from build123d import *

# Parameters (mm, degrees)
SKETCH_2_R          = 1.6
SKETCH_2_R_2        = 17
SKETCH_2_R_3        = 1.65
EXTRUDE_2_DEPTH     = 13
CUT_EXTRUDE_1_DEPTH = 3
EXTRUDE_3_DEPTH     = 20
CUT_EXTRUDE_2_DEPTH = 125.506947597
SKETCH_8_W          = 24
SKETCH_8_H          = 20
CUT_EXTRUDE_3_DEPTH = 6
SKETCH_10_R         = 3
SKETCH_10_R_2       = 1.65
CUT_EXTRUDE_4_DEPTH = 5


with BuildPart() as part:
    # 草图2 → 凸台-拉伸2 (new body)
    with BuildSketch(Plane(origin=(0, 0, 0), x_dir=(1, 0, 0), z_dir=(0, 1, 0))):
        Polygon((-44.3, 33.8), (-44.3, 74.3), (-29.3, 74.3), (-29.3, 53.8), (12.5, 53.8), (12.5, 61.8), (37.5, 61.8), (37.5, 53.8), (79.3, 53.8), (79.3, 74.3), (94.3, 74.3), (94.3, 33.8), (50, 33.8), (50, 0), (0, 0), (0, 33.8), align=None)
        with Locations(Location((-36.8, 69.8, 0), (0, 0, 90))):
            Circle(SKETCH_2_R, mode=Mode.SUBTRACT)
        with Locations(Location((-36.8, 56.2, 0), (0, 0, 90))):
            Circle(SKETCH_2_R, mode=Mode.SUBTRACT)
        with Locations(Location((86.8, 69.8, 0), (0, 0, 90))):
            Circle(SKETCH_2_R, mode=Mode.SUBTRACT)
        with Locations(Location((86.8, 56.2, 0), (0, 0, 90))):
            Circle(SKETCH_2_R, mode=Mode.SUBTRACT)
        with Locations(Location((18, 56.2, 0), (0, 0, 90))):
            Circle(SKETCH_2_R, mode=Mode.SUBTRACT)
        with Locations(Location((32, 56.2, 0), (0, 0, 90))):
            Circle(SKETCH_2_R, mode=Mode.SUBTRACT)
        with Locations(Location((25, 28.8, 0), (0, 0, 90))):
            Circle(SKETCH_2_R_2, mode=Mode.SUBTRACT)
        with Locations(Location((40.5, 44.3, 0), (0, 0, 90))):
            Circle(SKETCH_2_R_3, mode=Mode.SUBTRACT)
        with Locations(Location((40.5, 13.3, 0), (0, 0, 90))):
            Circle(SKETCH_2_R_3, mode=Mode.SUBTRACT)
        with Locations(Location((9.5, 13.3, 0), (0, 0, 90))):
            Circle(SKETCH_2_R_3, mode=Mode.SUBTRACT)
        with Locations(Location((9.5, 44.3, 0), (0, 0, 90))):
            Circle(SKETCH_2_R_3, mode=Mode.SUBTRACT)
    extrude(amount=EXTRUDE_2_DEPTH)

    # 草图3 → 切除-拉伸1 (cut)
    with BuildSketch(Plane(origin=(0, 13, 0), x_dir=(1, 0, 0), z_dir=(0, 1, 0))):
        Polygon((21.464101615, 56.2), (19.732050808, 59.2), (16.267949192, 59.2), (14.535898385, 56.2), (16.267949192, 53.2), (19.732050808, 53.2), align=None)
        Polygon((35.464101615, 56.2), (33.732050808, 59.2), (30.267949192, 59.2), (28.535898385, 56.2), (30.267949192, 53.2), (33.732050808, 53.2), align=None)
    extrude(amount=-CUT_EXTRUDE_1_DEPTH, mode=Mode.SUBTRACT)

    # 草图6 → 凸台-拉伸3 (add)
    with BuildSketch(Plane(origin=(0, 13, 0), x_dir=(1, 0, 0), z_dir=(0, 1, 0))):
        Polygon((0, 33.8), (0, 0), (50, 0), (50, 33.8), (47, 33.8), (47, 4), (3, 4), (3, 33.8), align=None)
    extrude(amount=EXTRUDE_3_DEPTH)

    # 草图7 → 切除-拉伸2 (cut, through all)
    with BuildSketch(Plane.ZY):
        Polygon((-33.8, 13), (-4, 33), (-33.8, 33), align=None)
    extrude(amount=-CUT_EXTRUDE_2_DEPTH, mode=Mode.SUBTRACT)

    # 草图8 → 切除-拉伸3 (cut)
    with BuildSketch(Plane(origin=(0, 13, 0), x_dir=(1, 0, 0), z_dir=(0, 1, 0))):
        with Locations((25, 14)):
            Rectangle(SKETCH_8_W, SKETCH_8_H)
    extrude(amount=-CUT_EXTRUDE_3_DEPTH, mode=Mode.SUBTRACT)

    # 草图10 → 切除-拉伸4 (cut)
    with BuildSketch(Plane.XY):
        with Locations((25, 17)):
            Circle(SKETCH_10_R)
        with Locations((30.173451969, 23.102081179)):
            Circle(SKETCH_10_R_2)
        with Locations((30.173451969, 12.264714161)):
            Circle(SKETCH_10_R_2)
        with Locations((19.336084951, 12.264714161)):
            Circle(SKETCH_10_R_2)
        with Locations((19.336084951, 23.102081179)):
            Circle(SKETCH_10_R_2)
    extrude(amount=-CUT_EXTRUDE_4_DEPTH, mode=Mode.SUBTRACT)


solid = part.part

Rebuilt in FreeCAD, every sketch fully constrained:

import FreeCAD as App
import Part
import Sketcher

V = App.Vector
Q = App.Units.Quantity

doc = App.newDocument("Part")
body = doc.addObject("PartDesign::Body", "Body")

sketch1 = body.newObject("Sketcher::SketchObject", "Sketch")
sketch1.AttachmentSupport = (doc.getObject("XZ_Plane"), [""])
sketch1.MapMode = "FlatFace"
sketch1.addGeometry(Part.LineSegment(V(-44.3, -74.3, 0), V(-44.3, -33.8, 0)), False)
sketch1.addGeometry(Part.LineSegment(V(-44.3, -33.8, 0), V(0, -33.8, 0)), False)
sketch1.addGeometry(Part.LineSegment(V(0, -33.8, 0), V(0, 0, 0)), False)
sketch1.addGeometry(Part.LineSegment(V(0, 0, 0), V(50, 0, 0)), False)
sketch1.addGeometry(Part.LineSegment(V(50, 0, 0), V(50, -33.8, 0)), False)
sketch1.addGeometry(Part.LineSegment(V(50, -33.8, 0), V(94.3, -33.8, 0)), False)
sketch1.addGeometry(Part.LineSegment(V(94.3, -33.8, 0), V(94.3, -74.3, 0)), False)
sketch1.addGeometry(Part.LineSegment(V(94.3, -74.3, 0), V(79.3, -74.3, 0)), False)
sketch1.addGeometry(Part.LineSegment(V(79.3, -74.3, 0), V(79.3, -53.8, 0)), False)
sketch1.addGeometry(Part.LineSegment(V(79.3, -53.8, 0), V(37.5, -53.8, 0)), False)
sketch1.addGeometry(Part.LineSegment(V(37.5, -53.8, 0), V(37.5, -61.8, 0)), False)
sketch1.addGeometry(Part.LineSegment(V(37.5, -61.8, 0), V(12.5, -61.8, 0)), False)
sketch1.addGeometry(Part.LineSegment(V(12.5, -61.8, 0), V(12.5, -53.8, 0)), False)
sketch1.addGeometry(Part.LineSegment(V(12.5, -53.8, 0), V(-29.3, -53.8, 0)), False)
sketch1.addGeometry(Part.LineSegment(V(-29.3, -53.8, 0), V(-29.3, -74.3, 0)), False)
sketch1.addGeometry(Part.LineSegment(V(-29.3, -74.3, 0), V(-44.3, -74.3, 0)), False)
sketch1.addGeometry(Part.Circle(V(40.5, -13.3, 0), V(0, 0, 1), 1.65), False)
sketch1.addGeometry(Part.Circle(V(25, -28.8, 0), V(0, 0, 1), 17), False)
sketch1.addGeometry(Part.Circle(V(9.5, -13.3, 0), V(0, 0, 1), 1.65), False)
sketch1.addGeometry(Part.Circle(V(86.8, -56.2, 0), V(0, 0, 1), 1.6), False)
sketch1.addGeometry(Part.Circle(V(40.5, -44.3, 0), V(0, 0, 1), 1.65), False)
sketch1.addGeometry(Part.Circle(V(32, -56.2, 0), V(0, 0, 1), 1.6), False)
sketch1.addGeometry(Part.Circle(V(86.8, -69.8, 0), V(0, 0, 1), 1.6), False)
sketch1.addGeometry(Part.Circle(V(9.5, -44.3, 0), V(0, 0, 1), 1.65), False)
sketch1.addGeometry(Part.Circle(V(18, -56.2, 0), V(0, 0, 1), 1.6), False)
sketch1.addGeometry(Part.Circle(V(-36.8, -56.2, 0), V(0, 0, 1), 1.6), False)
sketch1.addGeometry(Part.Circle(V(-36.8, -69.8, 0), V(0, 0, 1), 1.6), False)
sketch1.addConstraint(Sketcher.Constraint("Coincident", 0, 2, 1, 1))
sketch1.addConstraint(Sketcher.Constraint("Coincident", 1, 2, 2, 1))
sketch1.addConstraint(Sketcher.Constraint("Coincident", 2, 2, 3, 1))
sketch1.addConstraint(Sketcher.Constraint("Coincident", 3, 2, 4, 1))
sketch1.addConstraint(Sketcher.Constraint("Coincident", 4, 2, 5, 1))
sketch1.addConstraint(Sketcher.Constraint("Coincident", 5, 2, 6, 1))
sketch1.addConstraint(Sketcher.Constraint("Coincident", 6, 2, 7, 1))
sketch1.addConstraint(Sketcher.Constraint("Coincident", 7, 2, 8, 1))
sketch1.addConstraint(Sketcher.Constraint("Coincident", 8, 2, 9, 1))
sketch1.addConstraint(Sketcher.Constraint("Coincident", 9, 2, 10, 1))
sketch1.addConstraint(Sketcher.Constraint("Coincident", 10, 2, 11, 1))
sketch1.addConstraint(Sketcher.Constraint("Coincident", 11, 2, 12, 1))
sketch1.addConstraint(Sketcher.Constraint("Coincident", 12, 2, 13, 1))
sketch1.addConstraint(Sketcher.Constraint("Coincident", 13, 2, 14, 1))
sketch1.addConstraint(Sketcher.Constraint("Coincident", 14, 2, 15, 1))
sketch1.addConstraint(Sketcher.Constraint("Coincident", 15, 2, 0, 1))
sketch1.addConstraint(Sketcher.Constraint("Vertical", 0))
sketch1.addConstraint(Sketcher.Constraint("Horizontal", 1))
sketch1.addConstraint(Sketcher.Constraint("Vertical", 2))
sketch1.addConstraint(Sketcher.Constraint("Horizontal", 3))
sketch1.addConstraint(Sketcher.Constraint("Vertical", 4))
sketch1.addConstraint(Sketcher.Constraint("Horizontal", 5))
sketch1.addConstraint(Sketcher.Constraint("Vertical", 6))
sketch1.addConstraint(Sketcher.Constraint("Horizontal", 7))
sketch1.addConstraint(Sketcher.Constraint("Vertical", 8))
sketch1.addConstraint(Sketcher.Constraint("Horizontal", 9))
sketch1.addConstraint(Sketcher.Constraint("Vertical", 10))
sketch1.addConstraint(Sketcher.Constraint("Horizontal", 11))
sketch1.addConstraint(Sketcher.Constraint("Vertical", 12))
sketch1.addConstraint(Sketcher.Constraint("Horizontal", 13))
sketch1.addConstraint(Sketcher.Constraint("Vertical", 14))
sketch1.addConstraint(Sketcher.Constraint("Horizontal", 15))
sketch1.addConstraint(Sketcher.Constraint("Coincident", 2, 2, -1, 1))
sketch1.addConstraint(Sketcher.Constraint("Equal", 16, 18))
sketch1.addConstraint(Sketcher.Constraint("Equal", 18, 20))
sketch1.addConstraint(Sketcher.Constraint("Equal", 19, 21))
sketch1.addConstraint(Sketcher.Constraint("Equal", 21, 22))
sketch1.addConstraint(Sketcher.Constraint("Equal", 20, 23))
sketch1.addConstraint(Sketcher.Constraint("Equal", 22, 24))
sketch1.addConstraint(Sketcher.Constraint("Equal", 24, 25))
sketch1.addConstraint(Sketcher.Constraint("Equal", 25, 26))
sketch1.addConstraint(Sketcher.Constraint("Horizontal", 16, 3, 18, 3))
sketch1.addConstraint(Sketcher.Constraint("Horizontal", 19, 3, 21, 3))
sketch1.addConstraint(Sketcher.Constraint("Horizontal", 20, 3, 23, 3))
sketch1.addConstraint(Sketcher.Constraint("Horizontal", 21, 3, 24, 3))
sketch1.addConstraint(Sketcher.Constraint("Horizontal", 24, 3, 25, 3))
sketch1.addConstraint(Sketcher.Constraint("Horizontal", 22, 3, 26, 3))
sketch1.addConstraint(Sketcher.Constraint("Horizontal", 1, 2, 4, 2))
sketch1.addConstraint(Sketcher.Constraint("Horizontal", 9, 2, 12, 2))
sketch1.addConstraint(Sketcher.Constraint("Horizontal", 7, 2, 14, 2))
sketch1.addConstraint(Sketcher.Constraint("Vertical", 16, 3, 20, 3))
sketch1.addConstraint(Sketcher.Constraint("Vertical", 19, 3, 22, 3))
sketch1.addConstraint(Sketcher.Constraint("Vertical", 18, 3, 23, 3))
sketch1.addConstraint(Sketcher.Constraint("Vertical", 25, 3, 26, 3))
sketch1.addConstraint(Sketcher.Constraint("Equal", 1, 5))
sketch1.addConstraint(Sketcher.Constraint("Equal", 9, 13))
sketch1.addConstraint(Sketcher.Constraint("Equal", 7, 15))
sketch1.addConstraint(Sketcher.Constraint("Diameter", 17, 34.0))
sketch1.addConstraint(Sketcher.Constraint("Diameter", 16, 3.3))
sketch1.addConstraint(Sketcher.Constraint("Diameter", 19, 3.2))
sketch1.addConstraint(Sketcher.Constraint("DistanceX", 3, 1, 3, 2, 50.0))
sketch1.addConstraint(Sketcher.Constraint("DistanceX", 7, 2, 7, 1, 15.0))
sketch1.addConstraint(Sketcher.Constraint("DistanceX", 11, 2, 11, 1, 25.0))
sketch1.addConstraint(Sketcher.Constraint("DistanceY", 10, 2, 10, 1, 8.0))
sketch1.addConstraint(Sketcher.Constraint("DistanceX", 1, 1, 1, 2, 44.3))
sketch1.addConstraint(Sketcher.Constraint("DistanceY", 0, 1, 0, 2, 40.5))
sketch1.addConstraint(Sketcher.Constraint("DistanceY", 2, 1, 2, 2, 33.8))
sketch1.addConstraint(Sketcher.Constraint("DistanceY", 8, 1, 8, 2, 20.5))
sketch1.addConstraint(Sketcher.Constraint("DistanceX", -1, 1, 17, 3, 25.0))
sketch1.addConstraint(Sketcher.Constraint("DistanceX", -1, 1, 21, 3, 32.0))
sketch1.addConstraint(Sketcher.Constraint("DistanceX", -1, 1, 24, 3, 18.0))
sketch1.addConstraint(Sketcher.Constraint("DistanceX", 18, 3, 16, 3, 31.0))
sketch1.addConstraint(Sketcher.Constraint("DistanceY", 20, 3, 16, 3, 31.0))
sketch1.addConstraint(Sketcher.Constraint("DistanceY", 22, 3, 17, 3, 41.0))
sketch1.addConstraint(Sketcher.Constraint("DistanceY", 26, 3, 0, 2, 36.0))
sketch1.addConstraint(Sketcher.Constraint("DistanceY", 6, 2, 20, 3, 30.0))
sketch1.addConstraint(Sketcher.Constraint("DistanceX", 9, 2, 20, 3, 3.0))
sketch1.addConstraint(Sketcher.Constraint("DistanceX", -1, 1, 19, 3, 86.8))
sketch1.addConstraint(Sketcher.Constraint("DistanceY", 19, 3, -1, 1, 56.2))
sketch1.addConstraint(Sketcher.Constraint("DistanceX", 25, 3, -1, 1, 36.8))
pad1 = body.newObject("PartDesign::Pad", "Pad")
pad1.Profile = sketch1
pad1.Length = 13
pad1.Reversed = True

sketch2 = body.newObject("Sketcher::SketchObject", "Sketch001")
sketch2.AttachmentSupport = (doc.getObject("XZ_Plane"), [""])
sketch2.MapMode = "FlatFace"
sketch2.AttachmentOffset = App.Placement(V(0, 0, -13), App.Rotation())
sketch2.addGeometry(Part.LineSegment(V(21.464102, -56.2, 0), V(19.732051, -59.2, 0)), False)
sketch2.addGeometry(Part.LineSegment(V(19.732051, -59.2, 0), V(16.267949, -59.2, 0)), False)
sketch2.addGeometry(Part.LineSegment(V(16.267949, -59.2, 0), V(14.535898, -56.2, 0)), False)
sketch2.addGeometry(Part.LineSegment(V(14.535898, -56.2, 0), V(16.267949, -53.2, 0)), False)
sketch2.addGeometry(Part.LineSegment(V(16.267949, -53.2, 0), V(19.732051, -53.2, 0)), False)
sketch2.addGeometry(Part.LineSegment(V(19.732051, -53.2, 0), V(21.464102, -56.2, 0)), False)
sketch2.addGeometry(Part.LineSegment(V(35.464102, -56.2, 0), V(33.732051, -59.2, 0)), False)
sketch2.addGeometry(Part.LineSegment(V(33.732051, -59.2, 0), V(30.267949, -59.2, 0)), False)
sketch2.addGeometry(Part.LineSegment(V(30.267949, -59.2, 0), V(28.535898, -56.2, 0)), False)
sketch2.addGeometry(Part.LineSegment(V(28.535898, -56.2, 0), V(30.267949, -53.2, 0)), False)
sketch2.addGeometry(Part.LineSegment(V(30.267949, -53.2, 0), V(33.732051, -53.2, 0)), False)
sketch2.addGeometry(Part.LineSegment(V(33.732051, -53.2, 0), V(35.464102, -56.2, 0)), False)
sketch2.addConstraint(Sketcher.Constraint("Coincident", 0, 2, 1, 1))
sketch2.addConstraint(Sketcher.Constraint("Coincident", 1, 2, 2, 1))
sketch2.addConstraint(Sketcher.Constraint("Coincident", 2, 2, 3, 1))
sketch2.addConstraint(Sketcher.Constraint("Coincident", 3, 2, 4, 1))
sketch2.addConstraint(Sketcher.Constraint("Coincident", 4, 2, 5, 1))
sketch2.addConstraint(Sketcher.Constraint("Coincident", 5, 2, 0, 1))
sketch2.addConstraint(Sketcher.Constraint("Coincident", 6, 2, 7, 1))
sketch2.addConstraint(Sketcher.Constraint("Coincident", 7, 2, 8, 1))
sketch2.addConstraint(Sketcher.Constraint("Coincident", 8, 2, 9, 1))
sketch2.addConstraint(Sketcher.Constraint("Coincident", 9, 2, 10, 1))
sketch2.addConstraint(Sketcher.Constraint("Coincident", 10, 2, 11, 1))
sketch2.addConstraint(Sketcher.Constraint("Coincident", 11, 2, 6, 1))
sketch2.addConstraint(Sketcher.Constraint("Horizontal", 1))
sketch2.addConstraint(Sketcher.Constraint("Horizontal", 4))
sketch2.addConstraint(Sketcher.Constraint("Horizontal", 7))
sketch2.addConstraint(Sketcher.Constraint("Horizontal", 10))
sketch2.addConstraint(Sketcher.Constraint("Parallel", 0, 3))
sketch2.addConstraint(Sketcher.Constraint("Parallel", 2, 5))
sketch2.addConstraint(Sketcher.Constraint("Parallel", 3, 6))
sketch2.addConstraint(Sketcher.Constraint("Parallel", 5, 8))
sketch2.addConstraint(Sketcher.Constraint("Parallel", 6, 9))
sketch2.addConstraint(Sketcher.Constraint("Parallel", 8, 11))
sketch2.addConstraint(Sketcher.Constraint("Horizontal", 2, 2, 5, 2))
sketch2.addConstraint(Sketcher.Constraint("Horizontal", 1, 2, 6, 2))
sketch2.addConstraint(Sketcher.Constraint("Horizontal", 5, 2, 8, 2))
sketch2.addConstraint(Sketcher.Constraint("Horizontal", 4, 2, 9, 2))
sketch2.addConstraint(Sketcher.Constraint("Horizontal", 8, 2, 11, 2))
sketch2.addConstraint(Sketcher.Constraint("Vertical", 1, 2, 3, 2))
sketch2.addConstraint(Sketcher.Constraint("Vertical", 0, 2, 4, 2))
sketch2.addConstraint(Sketcher.Constraint("Equal", 4, 7))
sketch2.addConstraint(Sketcher.Constraint("Angle", 0, Q("-120 deg")))
sketch2.addConstraint(Sketcher.Constraint("DistanceY", 1, 2, 2, 2, 3.0))
sketch2.addConstraint(Sketcher.Constraint("DistanceX", 0, 2, 6, 2, 14.0))
sketch2.addConstraint(Sketcher.Constraint("DistanceY", 0, 2, -1, 1, 59.2))
sketch2.addConstraint(Sketcher.Constraint("DistanceX", 1, 2, 1, 1, 3.464102))
sketch2.addConstraint(Sketcher.Constraint("DistanceX", -1, 1, 2, 2, 14.535898))
pocket1 = body.newObject("PartDesign::Pocket", "Pocket")
pocket1.Profile = sketch2
pocket1.Length = 3
pocket1.Reversed = True

sketch3 = body.newObject("Sketcher::SketchObject", "Sketch002")
sketch3.AttachmentSupport = (doc.getObject("XZ_Plane"), [""])
sketch3.MapMode = "FlatFace"
sketch3.AttachmentOffset = App.Placement(V(0, 0, -13), App.Rotation())
sketch3.addGeometry(Part.LineSegment(V(0, -33.8, 0), V(0, 0, 0)), False)
sketch3.addGeometry(Part.LineSegment(V(0, 0, 0), V(50, 0, 0)), False)
sketch3.addGeometry(Part.LineSegment(V(50, 0, 0), V(50, -33.8, 0)), False)
sketch3.addGeometry(Part.LineSegment(V(50, -33.8, 0), V(47, -33.8, 0)), False)
sketch3.addGeometry(Part.LineSegment(V(47, -33.8, 0), V(47, -4, 0)), False)
sketch3.addGeometry(Part.LineSegment(V(47, -4, 0), V(3, -4, 0)), False)
sketch3.addGeometry(Part.LineSegment(V(3, -4, 0), V(3, -33.8, 0)), False)
sketch3.addGeometry(Part.LineSegment(V(3, -33.8, 0), V(0, -33.8, 0)), False)
sketch3.addConstraint(Sketcher.Constraint("Coincident", 0, 2, 1, 1))
sketch3.addConstraint(Sketcher.Constraint("Coincident", 1, 2, 2, 1))
sketch3.addConstraint(Sketcher.Constraint("Coincident", 2, 2, 3, 1))
sketch3.addConstraint(Sketcher.Constraint("Coincident", 3, 2, 4, 1))
sketch3.addConstraint(Sketcher.Constraint("Coincident", 4, 2, 5, 1))
sketch3.addConstraint(Sketcher.Constraint("Coincident", 5, 2, 6, 1))
sketch3.addConstraint(Sketcher.Constraint("Coincident", 6, 2, 7, 1))
sketch3.addConstraint(Sketcher.Constraint("Coincident", 7, 2, 0, 1))
sketch3.addConstraint(Sketcher.Constraint("Vertical", 0))
sketch3.addConstraint(Sketcher.Constraint("Horizontal", 1))
sketch3.addConstraint(Sketcher.Constraint("Vertical", 2))
sketch3.addConstraint(Sketcher.Constraint("Horizontal", 3))
sketch3.addConstraint(Sketcher.Constraint("Vertical", 4))
sketch3.addConstraint(Sketcher.Constraint("Horizontal", 5))
sketch3.addConstraint(Sketcher.Constraint("Vertical", 6))
sketch3.addConstraint(Sketcher.Constraint("Horizontal", 7))
sketch3.addConstraint(Sketcher.Constraint("Coincident", 0, 2, -1, 1))
sketch3.addConstraint(Sketcher.Constraint("Horizontal", 3, 2, 6, 2))
sketch3.addConstraint(Sketcher.Constraint("Equal", 3, 7))
sketch3.addConstraint(Sketcher.Constraint("DistanceX", 1, 1, 1, 2, 50.0))
sketch3.addConstraint(Sketcher.Constraint("DistanceX", 3, 2, 3, 1, 3.0))
sketch3.addConstraint(Sketcher.Constraint("DistanceY", 0, 1, 0, 2, 33.8))
sketch3.addConstraint(Sketcher.Constraint("DistanceY", 4, 1, 4, 2, 29.8))
pad2 = body.newObject("PartDesign::Pad", "Pad001")
pad2.Profile = sketch3
pad2.Length = 20
pad2.Reversed = True

sketch4 = body.newObject("Sketcher::SketchObject", "Sketch003")
sketch4.AttachmentSupport = (doc.getObject("YZ_Plane"), [""])
sketch4.MapMode = "FlatFace"
sketch4.addGeometry(Part.LineSegment(V(13, -33.8, 0), V(33, -4, 0)), False)
sketch4.addGeometry(Part.LineSegment(V(33, -4, 0), V(33, -33.8, 0)), False)
sketch4.addGeometry(Part.LineSegment(V(33, -33.8, 0), V(13, -33.8, 0)), False)
sketch4.addConstraint(Sketcher.Constraint("Coincident", 0, 2, 1, 1))
sketch4.addConstraint(Sketcher.Constraint("Coincident", 1, 2, 2, 1))
sketch4.addConstraint(Sketcher.Constraint("Coincident", 2, 2, 0, 1))
sketch4.addConstraint(Sketcher.Constraint("Vertical", 1))
sketch4.addConstraint(Sketcher.Constraint("Horizontal", 2))
sketch4.addConstraint(Sketcher.Constraint("DistanceX", 2, 2, 2, 1, 20.0))
sketch4.addConstraint(Sketcher.Constraint("DistanceY", 1, 2, 1, 1, 29.8))
sketch4.addConstraint(Sketcher.Constraint("DistanceX", -1, 1, 0, 2, 33.0))
sketch4.addConstraint(Sketcher.Constraint("DistanceY", 0, 2, -1, 1, 4.0))
pocket2 = body.newObject("PartDesign::Pocket", "Pocket001")
pocket2.Profile = sketch4
pocket2.Type = "ThroughAll"
pocket2.Reversed = True

sketch5 = body.newObject("Sketcher::SketchObject", "Sketch004")
sketch5.AttachmentSupport = (doc.getObject("XZ_Plane"), [""])
sketch5.MapMode = "FlatFace"
sketch5.AttachmentOffset = App.Placement(V(0, 0, -13), App.Rotation())
sketch5.addGeometry(Part.LineSegment(V(13, -24, 0), V(13, -4, 0)), False)
sketch5.addGeometry(Part.LineSegment(V(13, -4, 0), V(37, -4, 0)), False)
sketch5.addGeometry(Part.LineSegment(V(37, -4, 0), V(37, -24, 0)), False)
sketch5.addGeometry(Part.LineSegment(V(37, -24, 0), V(13, -24, 0)), False)
sketch5.addConstraint(Sketcher.Constraint("Coincident", 0, 2, 1, 1))
sketch5.addConstraint(Sketcher.Constraint("Coincident", 1, 2, 2, 1))
sketch5.addConstraint(Sketcher.Constraint("Coincident", 2, 2, 3, 1))
sketch5.addConstraint(Sketcher.Constraint("Coincident", 3, 2, 0, 1))
sketch5.addConstraint(Sketcher.Constraint("Vertical", 0))
sketch5.addConstraint(Sketcher.Constraint("Horizontal", 1))
sketch5.addConstraint(Sketcher.Constraint("Vertical", 2))
sketch5.addConstraint(Sketcher.Constraint("Horizontal", 3))
sketch5.addConstraint(Sketcher.Constraint("DistanceX", 1, 1, 1, 2, 24.0))
sketch5.addConstraint(Sketcher.Constraint("DistanceY", 0, 1, 0, 2, 20.0))
sketch5.addConstraint(Sketcher.Constraint("DistanceX", -1, 1, 0, 2, 13.0))
sketch5.addConstraint(Sketcher.Constraint("DistanceY", 0, 2, -1, 1, 4.0))
pocket3 = body.newObject("PartDesign::Pocket", "Pocket002")
pocket3.Profile = sketch5
pocket3.Length = 6
pocket3.Reversed = True

sketch6 = body.newObject("Sketcher::SketchObject", "Sketch005")
sketch6.AttachmentSupport = (doc.getObject("XY_Plane"), [""])
sketch6.MapMode = "FlatFace"
sketch6.addGeometry(Part.Circle(V(25, 17, 0), V(0, 0, 1), 3), False)
sketch6.addGeometry(Part.Circle(V(30.173452, 23.102081, 0), V(0, 0, 1), 1.65), False)
sketch6.addGeometry(Part.Circle(V(30.173452, 12.264714, 0), V(0, 0, 1), 1.65), False)
sketch6.addGeometry(Part.Circle(V(19.336085, 12.264714, 0), V(0, 0, 1), 1.65), False)
sketch6.addGeometry(Part.Circle(V(19.336085, 23.102081, 0), V(0, 0, 1), 1.65), False)
sketch6.addConstraint(Sketcher.Constraint("Equal", 1, 2))
sketch6.addConstraint(Sketcher.Constraint("Equal", 2, 3))
sketch6.addConstraint(Sketcher.Constraint("Equal", 3, 4))
sketch6.addConstraint(Sketcher.Constraint("Horizontal", 2, 3, 3, 3))
sketch6.addConstraint(Sketcher.Constraint("Horizontal", 1, 3, 4, 3))
sketch6.addConstraint(Sketcher.Constraint("Vertical", 1, 3, 2, 3))
sketch6.addConstraint(Sketcher.Constraint("Vertical", 3, 3, 4, 3))
sketch6.addConstraint(Sketcher.Constraint("Diameter", 0, 6.0))
sketch6.addConstraint(Sketcher.Constraint("Diameter", 1, 3.3))
sketch6.addConstraint(Sketcher.Constraint("DistanceX", -1, 1, 0, 3, 25.0))
sketch6.addConstraint(Sketcher.Constraint("DistanceY", -1, 1, 0, 3, 17.0))
sketch6.addConstraint(Sketcher.Constraint("DistanceX", -1, 1, 1, 3, 30.173452))
sketch6.addConstraint(Sketcher.Constraint("DistanceY", -1, 1, 1, 3, 23.102081))
sketch6.addConstraint(Sketcher.Constraint("DistanceY", -1, 1, 2, 3, 12.264714))
sketch6.addConstraint(Sketcher.Constraint("DistanceX", -1, 1, 3, 3, 19.336085))
pocket4 = body.newObject("PartDesign::Pocket", "Pocket003")
pocket4.Profile = sketch6
pocket4.Length = 5

doc.recompute()
